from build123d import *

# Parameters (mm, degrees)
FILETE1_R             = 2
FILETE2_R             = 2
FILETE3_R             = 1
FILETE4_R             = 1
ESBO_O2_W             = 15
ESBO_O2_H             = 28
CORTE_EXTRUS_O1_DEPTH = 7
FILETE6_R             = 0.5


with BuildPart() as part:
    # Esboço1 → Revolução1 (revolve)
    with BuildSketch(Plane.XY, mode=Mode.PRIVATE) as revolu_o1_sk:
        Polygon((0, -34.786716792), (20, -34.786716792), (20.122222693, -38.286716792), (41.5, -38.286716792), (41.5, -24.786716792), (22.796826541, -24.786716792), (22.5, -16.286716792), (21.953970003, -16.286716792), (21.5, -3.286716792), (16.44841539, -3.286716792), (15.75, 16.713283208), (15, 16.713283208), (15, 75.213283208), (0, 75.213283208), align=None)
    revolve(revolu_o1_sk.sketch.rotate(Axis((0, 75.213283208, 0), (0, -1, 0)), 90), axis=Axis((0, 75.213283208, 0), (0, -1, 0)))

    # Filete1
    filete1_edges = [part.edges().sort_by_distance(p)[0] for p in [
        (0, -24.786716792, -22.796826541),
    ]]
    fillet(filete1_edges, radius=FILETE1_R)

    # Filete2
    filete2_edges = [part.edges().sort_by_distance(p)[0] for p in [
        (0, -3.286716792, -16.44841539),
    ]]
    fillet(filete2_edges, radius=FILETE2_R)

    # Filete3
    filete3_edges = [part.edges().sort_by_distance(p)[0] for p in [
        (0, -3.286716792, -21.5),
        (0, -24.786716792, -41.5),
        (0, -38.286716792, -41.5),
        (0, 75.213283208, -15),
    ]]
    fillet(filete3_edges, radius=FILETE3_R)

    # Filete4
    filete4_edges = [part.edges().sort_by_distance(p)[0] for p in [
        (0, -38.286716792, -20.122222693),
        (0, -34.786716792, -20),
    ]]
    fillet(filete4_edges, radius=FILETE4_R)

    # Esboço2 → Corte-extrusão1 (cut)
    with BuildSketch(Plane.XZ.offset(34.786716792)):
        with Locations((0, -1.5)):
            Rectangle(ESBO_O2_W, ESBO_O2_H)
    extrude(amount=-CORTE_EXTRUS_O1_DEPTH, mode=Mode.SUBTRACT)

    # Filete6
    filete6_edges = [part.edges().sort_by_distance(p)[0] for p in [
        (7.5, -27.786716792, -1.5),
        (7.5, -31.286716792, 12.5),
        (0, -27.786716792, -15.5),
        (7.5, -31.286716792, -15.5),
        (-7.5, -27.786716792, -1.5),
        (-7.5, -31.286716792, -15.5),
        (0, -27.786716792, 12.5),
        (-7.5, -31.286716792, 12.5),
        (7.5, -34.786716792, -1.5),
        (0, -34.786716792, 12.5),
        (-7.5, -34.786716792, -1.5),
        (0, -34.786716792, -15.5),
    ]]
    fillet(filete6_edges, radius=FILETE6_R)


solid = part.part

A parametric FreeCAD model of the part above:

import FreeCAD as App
import Part
import Sketcher
Q = App.Units.Quantity


def edges_at(feature, points):
    """Names of the edges that pass closest to the given points."""
    edges = feature.Shape.Edges
    near = lambda p: min(range(len(edges)), key=lambda i: edges[i].distToShape(Part.Vertex(*p))[0])
    return sorted({f"Edge{near(p) + 1}" for p in points})

doc = App.newDocument("Part")
params = doc.addObject("Spreadsheet::Sheet", "Params")
for row, (alias, value) in enumerate([
    ("sketch1_width", "20 mm"),
    ("sketch1_width2", "15 mm"),
    ("sketch1_height", "110 mm"),
    ("sketch1_height2", "13.5 mm"),
    ("sketch1_height3", "58.5 mm"),
    ("revolution_angle", "360 deg"),
    ("fillet_radius", "2 mm"),
    ("fillet2_radius", "2 mm"),
    ("fillet3_radius", "1 mm"),
    ("fillet4_radius", "1 mm"),
    ("sketch2_width", "15 mm"),
    ("sketch2_height", "28 mm"),
    ("pocket1_length", "7 mm"),
    ("fillet5_radius", "0.5 mm"),
], start=1):
    params.set(f"A{row}", alias)
    params.set(f"B{row}", "=" + value)
    params.setAlias(f"B{row}", alias)

body = doc.addObject("PartDesign::Body", "Body")

# Sketch on XY plane
sketch1 = body.newObject("Sketcher::SketchObject", "Sketch")
sketch1.AttachmentSupport = (doc.getObject("XY_Plane"), [""])
sketch1.MapMode = "FlatFace"
sketch1.addGeometry([
    Part.LineSegment(App.Vector(0, -34.786717, 0), App.Vector(20, -34.786717, 0)),  # 0
    Part.LineSegment(App.Vector(20, -34.786717, 0), App.Vector(20.122223, -38.286717, 0)),  # 1
    Part.LineSegment(App.Vector(20.122223, -38.286717, 0), App.Vector(41.5, -38.286717, 0)),  # 2
    Part.LineSegment(App.Vector(41.5, -38.286717, 0), App.Vector(41.5, -24.786717, 0)),  # 3
    Part.LineSegment(App.Vector(41.5, -24.786717, 0), App.Vector(22.796827, -24.786717, 0)),  # 4
    Part.LineSegment(App.Vector(22.796827, -24.786717, 0), App.Vector(22.5, -16.286717, 0)),  # 5
    Part.LineSegment(App.Vector(22.5, -16.286717, 0), App.Vector(21.95397, -16.286717, 0)),  # 6
    Part.LineSegment(App.Vector(21.95397, -16.286717, 0), App.Vector(21.5, -3.286717, 0)),  # 7
    Part.LineSegment(App.Vector(21.5, -3.286717, 0), App.Vector(16.448415, -3.286717, 0)),  # 8
    Part.LineSegment(App.Vector(16.448415, -3.286717, 0), App.Vector(15.75, 16.713283, 0)),  # 9
    Part.LineSegment(App.Vector(15.75, 16.713283, 0), App.Vector(15, 16.713283, 0)),  # 10
    Part.LineSegment(App.Vector(15, 16.713283, 0), App.Vector(15, 75.213283, 0)),  # 11
    Part.LineSegment(App.Vector(15, 75.213283, 0), App.Vector(0, 75.213283, 0)),  # 12
    Part.LineSegment(App.Vector(0, 75.213283, 0), App.Vector(0, -34.786717, 0)),  # 13
], False)
sketch1.addConstraint([
    Sketcher.Constraint("Coincident", 0, 2, 1, 1),
    Sketcher.Constraint("Coincident", 1, 2, 2, 1),
    Sketcher.Constraint("Coincident", 2, 2, 3, 1),
    Sketcher.Constraint("Coincident", 3, 2, 4, 1),
    Sketcher.Constraint("Coincident", 4, 2, 5, 1),
    Sketcher.Constraint("Coincident", 5, 2, 6, 1),
    Sketcher.Constraint("Coincident", 6, 2, 7, 1),
    Sketcher.Constraint("Coincident", 7, 2, 8, 1),
    Sketcher.Constraint("Coincident", 8, 2, 9, 1),
    Sketcher.Constraint("Coincident", 9, 2, 10, 1),
    Sketcher.Constraint("Coincident", 10, 2, 11, 1),
    Sketcher.Constraint("Coincident", 11, 2, 12, 1),
    Sketcher.Constraint("Coincident", 12, 2, 13, 1),
    Sketcher.Constraint("Coincident", 13, 2, 0, 1),
    Sketcher.Constraint("Horizontal", 0),
    Sketcher.Constraint("Horizontal", 2),
    Sketcher.Constraint("Vertical", 3),
    Sketcher.Constraint("Horizontal", 4),
    Sketcher.Constraint("Horizontal", 6),
    Sketcher.Constraint("Horizontal", 8),
    Sketcher.Constraint("Horizontal", 10),
    Sketcher.Constraint("Vertical", 11),
    Sketcher.Constraint("Horizontal", 12),
    Sketcher.Constraint("Vertical", 13),
    Sketcher.Constraint("PointOnObject", 12, 2, -2),
    Sketcher.Constraint("Parallel", 1, 5),
    Sketcher.Constraint("Parallel", 5, 7),
    Sketcher.Constraint("Parallel", 7, 9),
    Sketcher.Constraint("DistanceX", 0, 1, 0, 2, Q("20 mm")),
    Sketcher.Constraint("DistanceX", 12, 2, 12, 1, Q("15 mm")),
    Sketcher.Constraint("DistanceY", 13, 2, 13, 1, Q("110 mm")),
    Sketcher.Constraint("Angle", 1, Q("-88 deg")),
    Sketcher.Constraint("DistanceY", 3, 1, 3, 2, Q("13.5 mm")),
    Sketcher.Constraint("DistanceY", 11, 1, 11, 2, Q("58.5 mm")),
    Sketcher.Constraint("DistanceY", 0, 2, 3, 2, Q("10 mm")),
    Sketcher.Constraint("DistanceX", 5, 2, 3, 2, Q("19 mm")),
    Sketcher.Constraint("DistanceY", 1, 2, 5, 2, Q("22 mm")),
    Sketcher.Constraint("DistanceY", 6, 2, 7, 2, Q("13 mm")),
    Sketcher.Constraint("DistanceX", 7, 2, 5, 2, Q("1 mm")),
    Sketcher.Constraint("DistanceX", 10, 2, 10, 1, Q("0.75 mm")),
    Sketcher.Constraint("DistanceX", -1, 1, 2, 2, Q("41.5 mm")),
    Sketcher.Constraint("DistanceY", 0, 2, -1, 1, Q("34.786717 mm")),
])
sketch1.setExpression("Constraints[28]", "Params.sketch1_width")
sketch1.setExpression("Constraints[29]", "Params.sketch1_width2")
sketch1.setExpression("Constraints[30]", "Params.sketch1_height")
sketch1.setExpression("Constraints[32]", "Params.sketch1_height2")
sketch1.setExpression("Constraints[33]", "Params.sketch1_height3")
revolution = body.newObject("PartDesign::Revolution", "Revolution")
revolution.Profile = sketch1
revolution.ReferenceAxis = (sketch1, ["V_Axis"])
revolution.setExpression("Angle", "Params.revolution_angle")
doc.recompute()

fillet = body.newObject("PartDesign::Fillet", "Fillet")
fillet.Base = (revolution, edges_at(revolution, [(0, -24.787, -22.797)]))
fillet.setExpression("Radius", "Params.fillet_radius")
doc.recompute()

fillet2 = body.newObject("PartDesign::Fillet", "Fillet001")
fillet2.Base = (fillet, edges_at(fillet, [(0, -3.287, -16.448)]))
fillet2.setExpression("Radius", "Params.fillet2_radius")
doc.recompute()

fillet3 = body.newObject("PartDesign::Fillet", "Fillet002")
fillet3.Base = (fillet2, edges_at(fillet2, [
    (0, -3.287, -21.5),
    (0, -24.787, -41.5),
    (0, -38.287, -41.5),
    (0, 75.213, -15),
]))
fillet3.setExpression("Radius", "Params.fillet3_radius")
doc.recompute()

fillet4 = body.newObject("PartDesign::Fillet", "Fillet003")
fillet4.Base = (fillet3, edges_at(fillet3, [(0, -38.287, -20.122), (0, -34.787, -20)]))
fillet4.setExpression("Radius", "Params.fillet4_radius")

# Sketch on XZ plane
sketch2 = body.newObject("Sketcher::SketchObject", "Sketch001")
sketch2.AttachmentSupport = (doc.getObject("XZ_Plane"), [""])
sketch2.MapMode = "FlatFace"
sketch2.AttachmentOffset = App.Placement(App.Vector(0, 0, 34.786717), App.Rotation())
sketch2.addGeometry([
    Part.LineSegment(App.Vector(-7.5, 12.5, 0), App.Vector(-7.5, -15.5, 0)),
    Part.LineSegment(App.Vector(-7.5, -15.5, 0), App.Vector(7.5, -15.5, 0)),
    Part.LineSegment(App.Vector(7.5, -15.5, 0), App.Vector(7.5, 12.5, 0)),
    Part.LineSegment(App.Vector(7.5, 12.5, 0), App.Vector(-7.5, 12.5, 0)),
], False)
sketch2.addConstraint([
    Sketcher.Constraint("Coincident", 0, 2, 1, 1),
    Sketcher.Constraint("Coincident", 1, 2, 2, 1),
    Sketcher.Constraint("Coincident", 2, 2, 3, 1),
    Sketcher.Constraint("Coincident", 3, 2, 0, 1),
    Sketcher.Constraint("Vertical", 0),
    Sketcher.Constraint("Horizontal", 1),
    Sketcher.Constraint("Vertical", 2),
    Sketcher.Constraint("Horizontal", 3),
    Sketcher.Constraint("DistanceX", 1, 1, 1, 2, Q("15 mm")),
    Sketcher.Constraint("DistanceY", 0, 2, 0, 1, Q("28 mm")),
    Sketcher.Constraint("DistanceX", 0, 2, -1, 1, Q("7.5 mm")),
    Sketcher.Constraint("DistanceY", 0, 2, -1, 1, Q("15.5 mm")),
])
sketch2.setExpression("Constraints[8]", "Params.sketch2_width")
sketch2.setExpression("Constraints[9]", "Params.sketch2_height")
pocket1 = body.newObject("PartDesign::Pocket", "Pocket")
pocket1.Profile = sketch2
pocket1.setExpression("Length", "Params.pocket1_length")
doc.recompute()

fillet5 = body.newObject("PartDesign::Fillet", "Fillet004")
fillet5.Base = (pocket1, edges_at(pocket1, [
    (7.5, -27.787, -1.5),
    (7.5, -31.287, 12.5),
    (0, -27.787, -15.5),
    (7.5, -31.287, -15.5),
    (-7.5, -27.787, -1.5),
    (-7.5, -31.287, -15.5),
    (0, -27.787, 12.5),
    (-7.5, -31.287, 12.5),
    (7.5, -34.787, -1.5),
    (0, -34.787, 12.5),
    (-7.5, -34.787, -1.5),
    (0, -34.787, -15.5),
]))
fillet5.setExpression("Radius", "Params.fillet5_radius")

doc.recompute()
